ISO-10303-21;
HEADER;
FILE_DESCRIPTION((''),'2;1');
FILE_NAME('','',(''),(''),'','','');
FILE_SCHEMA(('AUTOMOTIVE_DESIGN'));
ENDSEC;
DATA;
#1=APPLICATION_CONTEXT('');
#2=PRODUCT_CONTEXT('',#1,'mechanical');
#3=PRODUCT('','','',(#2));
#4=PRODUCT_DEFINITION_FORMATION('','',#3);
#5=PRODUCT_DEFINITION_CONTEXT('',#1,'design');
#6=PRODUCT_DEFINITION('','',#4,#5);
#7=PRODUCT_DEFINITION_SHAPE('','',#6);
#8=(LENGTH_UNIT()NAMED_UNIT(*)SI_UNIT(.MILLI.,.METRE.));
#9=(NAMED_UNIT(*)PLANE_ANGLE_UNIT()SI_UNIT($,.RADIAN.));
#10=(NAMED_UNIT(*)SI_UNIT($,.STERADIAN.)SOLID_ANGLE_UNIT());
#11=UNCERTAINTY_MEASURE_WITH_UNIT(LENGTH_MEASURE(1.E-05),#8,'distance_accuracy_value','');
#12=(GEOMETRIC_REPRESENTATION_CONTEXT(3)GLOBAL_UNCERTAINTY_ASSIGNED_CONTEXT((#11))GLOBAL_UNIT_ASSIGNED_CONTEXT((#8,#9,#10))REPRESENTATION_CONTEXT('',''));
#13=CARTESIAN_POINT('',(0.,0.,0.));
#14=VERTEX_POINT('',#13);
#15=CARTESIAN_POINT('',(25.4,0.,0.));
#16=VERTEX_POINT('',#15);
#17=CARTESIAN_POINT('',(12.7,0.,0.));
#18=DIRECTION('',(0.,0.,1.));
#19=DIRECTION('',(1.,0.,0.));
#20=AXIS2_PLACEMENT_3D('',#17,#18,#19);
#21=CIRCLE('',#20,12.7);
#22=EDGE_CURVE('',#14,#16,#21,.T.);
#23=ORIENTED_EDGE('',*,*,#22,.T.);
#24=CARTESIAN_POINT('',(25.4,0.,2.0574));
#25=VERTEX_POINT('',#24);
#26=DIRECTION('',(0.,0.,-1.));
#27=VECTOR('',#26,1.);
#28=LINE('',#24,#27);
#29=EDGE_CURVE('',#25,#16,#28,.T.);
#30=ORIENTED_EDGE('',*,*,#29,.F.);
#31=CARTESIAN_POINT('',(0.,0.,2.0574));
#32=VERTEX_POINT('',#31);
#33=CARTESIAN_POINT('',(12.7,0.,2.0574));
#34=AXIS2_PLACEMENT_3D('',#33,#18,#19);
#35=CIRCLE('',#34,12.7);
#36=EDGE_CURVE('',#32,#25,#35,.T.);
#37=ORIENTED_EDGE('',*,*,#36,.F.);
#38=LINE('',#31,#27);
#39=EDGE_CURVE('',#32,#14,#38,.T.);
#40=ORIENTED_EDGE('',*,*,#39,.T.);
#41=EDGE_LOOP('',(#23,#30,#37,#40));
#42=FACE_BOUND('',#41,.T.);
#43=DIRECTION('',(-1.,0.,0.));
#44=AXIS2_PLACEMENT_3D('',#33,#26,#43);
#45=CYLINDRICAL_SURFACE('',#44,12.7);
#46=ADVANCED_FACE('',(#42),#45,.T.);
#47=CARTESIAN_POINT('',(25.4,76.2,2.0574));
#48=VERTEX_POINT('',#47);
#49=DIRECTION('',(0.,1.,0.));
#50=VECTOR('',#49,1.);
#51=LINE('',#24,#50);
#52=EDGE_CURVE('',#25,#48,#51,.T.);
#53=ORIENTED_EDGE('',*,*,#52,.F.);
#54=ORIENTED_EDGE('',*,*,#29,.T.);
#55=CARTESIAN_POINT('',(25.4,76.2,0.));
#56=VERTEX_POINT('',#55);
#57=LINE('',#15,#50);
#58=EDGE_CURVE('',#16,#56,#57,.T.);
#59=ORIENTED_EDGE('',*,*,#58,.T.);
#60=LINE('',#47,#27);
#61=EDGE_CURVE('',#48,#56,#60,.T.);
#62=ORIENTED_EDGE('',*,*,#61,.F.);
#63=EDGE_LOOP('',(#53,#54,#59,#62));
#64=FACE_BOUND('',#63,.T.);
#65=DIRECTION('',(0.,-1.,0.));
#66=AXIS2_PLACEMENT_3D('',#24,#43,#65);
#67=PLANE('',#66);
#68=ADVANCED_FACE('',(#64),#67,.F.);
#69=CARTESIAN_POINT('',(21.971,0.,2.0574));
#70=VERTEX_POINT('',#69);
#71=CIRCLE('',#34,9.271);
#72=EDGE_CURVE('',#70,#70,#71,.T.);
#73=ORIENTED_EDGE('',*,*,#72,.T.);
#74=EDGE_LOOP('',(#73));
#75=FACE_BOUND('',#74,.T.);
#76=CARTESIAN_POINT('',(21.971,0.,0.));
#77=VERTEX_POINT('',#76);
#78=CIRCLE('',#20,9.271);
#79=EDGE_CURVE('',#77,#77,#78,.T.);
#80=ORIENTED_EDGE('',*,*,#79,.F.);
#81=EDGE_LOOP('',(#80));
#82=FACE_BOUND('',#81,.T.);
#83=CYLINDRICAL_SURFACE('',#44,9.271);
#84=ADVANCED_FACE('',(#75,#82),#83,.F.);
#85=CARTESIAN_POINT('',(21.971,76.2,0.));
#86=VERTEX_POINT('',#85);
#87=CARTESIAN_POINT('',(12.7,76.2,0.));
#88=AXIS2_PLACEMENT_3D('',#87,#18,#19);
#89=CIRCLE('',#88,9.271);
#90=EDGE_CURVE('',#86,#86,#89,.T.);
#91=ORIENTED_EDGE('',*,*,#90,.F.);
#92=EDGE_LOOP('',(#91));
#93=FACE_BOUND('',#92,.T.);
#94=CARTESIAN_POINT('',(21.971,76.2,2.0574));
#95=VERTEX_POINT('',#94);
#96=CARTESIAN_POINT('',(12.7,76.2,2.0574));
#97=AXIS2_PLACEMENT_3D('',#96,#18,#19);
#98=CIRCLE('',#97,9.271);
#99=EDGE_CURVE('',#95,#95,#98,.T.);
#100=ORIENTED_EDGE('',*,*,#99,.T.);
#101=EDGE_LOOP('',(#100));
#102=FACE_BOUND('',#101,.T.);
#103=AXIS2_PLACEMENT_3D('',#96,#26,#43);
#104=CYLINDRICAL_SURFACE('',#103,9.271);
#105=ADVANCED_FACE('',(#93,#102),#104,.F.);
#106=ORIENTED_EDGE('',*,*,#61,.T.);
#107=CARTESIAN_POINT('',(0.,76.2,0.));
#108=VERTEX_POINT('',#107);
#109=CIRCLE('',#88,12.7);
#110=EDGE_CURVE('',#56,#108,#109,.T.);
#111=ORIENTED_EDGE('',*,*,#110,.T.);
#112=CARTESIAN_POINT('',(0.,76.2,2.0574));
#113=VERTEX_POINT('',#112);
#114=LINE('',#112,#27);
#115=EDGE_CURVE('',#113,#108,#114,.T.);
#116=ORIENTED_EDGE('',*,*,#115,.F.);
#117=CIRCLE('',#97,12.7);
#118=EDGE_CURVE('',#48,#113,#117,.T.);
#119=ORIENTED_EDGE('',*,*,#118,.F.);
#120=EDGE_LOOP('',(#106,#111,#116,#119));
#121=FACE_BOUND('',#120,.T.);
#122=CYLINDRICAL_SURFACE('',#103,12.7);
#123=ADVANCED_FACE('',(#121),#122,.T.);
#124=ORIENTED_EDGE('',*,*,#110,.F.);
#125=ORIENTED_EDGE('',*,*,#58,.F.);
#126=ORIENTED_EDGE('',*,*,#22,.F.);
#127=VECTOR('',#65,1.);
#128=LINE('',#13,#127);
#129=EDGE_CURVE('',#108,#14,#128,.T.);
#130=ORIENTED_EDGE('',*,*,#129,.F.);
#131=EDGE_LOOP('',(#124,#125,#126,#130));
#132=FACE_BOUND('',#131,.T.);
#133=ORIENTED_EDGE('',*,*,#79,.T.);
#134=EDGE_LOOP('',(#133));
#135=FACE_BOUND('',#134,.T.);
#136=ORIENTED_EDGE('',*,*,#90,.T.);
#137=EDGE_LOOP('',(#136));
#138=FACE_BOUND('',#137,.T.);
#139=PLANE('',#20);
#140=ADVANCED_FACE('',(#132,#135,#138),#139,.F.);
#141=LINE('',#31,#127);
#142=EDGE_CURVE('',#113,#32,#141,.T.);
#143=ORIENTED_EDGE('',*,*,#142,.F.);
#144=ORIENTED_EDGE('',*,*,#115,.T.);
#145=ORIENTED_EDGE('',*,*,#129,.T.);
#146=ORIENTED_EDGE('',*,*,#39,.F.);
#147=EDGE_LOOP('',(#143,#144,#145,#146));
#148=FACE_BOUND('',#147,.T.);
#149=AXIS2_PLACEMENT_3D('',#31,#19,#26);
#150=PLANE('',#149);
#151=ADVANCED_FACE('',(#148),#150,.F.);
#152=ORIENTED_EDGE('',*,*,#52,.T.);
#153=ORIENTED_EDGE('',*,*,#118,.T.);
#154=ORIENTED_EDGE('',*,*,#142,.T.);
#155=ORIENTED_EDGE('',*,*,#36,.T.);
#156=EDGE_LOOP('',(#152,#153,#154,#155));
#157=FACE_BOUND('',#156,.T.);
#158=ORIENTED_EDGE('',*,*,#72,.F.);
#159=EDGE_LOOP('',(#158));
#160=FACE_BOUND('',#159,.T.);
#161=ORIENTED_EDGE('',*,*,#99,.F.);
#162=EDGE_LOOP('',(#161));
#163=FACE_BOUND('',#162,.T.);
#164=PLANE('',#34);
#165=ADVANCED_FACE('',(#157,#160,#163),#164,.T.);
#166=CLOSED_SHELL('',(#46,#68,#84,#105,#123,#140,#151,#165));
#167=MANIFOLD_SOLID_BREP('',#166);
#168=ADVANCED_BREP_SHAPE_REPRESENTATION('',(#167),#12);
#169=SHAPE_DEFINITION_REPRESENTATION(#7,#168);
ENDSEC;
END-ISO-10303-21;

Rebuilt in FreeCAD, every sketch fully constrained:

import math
import FreeCAD as App
import Part
import Sketcher

V = App.Vector
Q = App.Units.Quantity

doc = App.newDocument("Part")
body = doc.addObject("PartDesign::Body", "Body")

sketch1 = body.newObject("Sketcher::SketchObject", "Sketch")
sketch1.AttachmentSupport = (doc.getObject("XY_Plane"), [""])
sketch1.MapMode = "FlatFace"
sketch1.addGeometry(Part.LineSegment(V(0, 76, 0), V(0, 0, 0)), False)
sketch1.addGeometry(Part.ArcOfCircle(Part.Circle(V(13, 0, 0), V(0, 0, 1), 13), math.radians(180), math.radians(360)), False)
sketch1.addGeometry(Part.LineSegment(V(25, 0, 0), V(25, 76, 0)), False)
sketch1.addGeometry(Part.ArcOfCircle(Part.Circle(V(13, 76, 0), V(0, 0, 1), 13), math.radians(0), math.radians(180)), False)
sketch1.addGeometry(Part.Circle(V(13, 0, 0), V(0, 0, 1), 9), False)
sketch1.addGeometry(Part.Circle(V(13, 76, 0), V(0, 0, 1), 9), False)
sketch1.addConstraint(Sketcher.Constraint("Tangent", 0, 2, 1, 1))
sketch1.addConstraint(Sketcher.Constraint("Tangent", 1, 2, 2, 1))
sketch1.addConstraint(Sketcher.Constraint("Tangent", 2, 2, 3, 1))
sketch1.addConstraint(Sketcher.Constraint("Tangent", 3, 2, 0, 1))
sketch1.addConstraint(Sketcher.Constraint("Vertical", 0))
sketch1.addConstraint(Sketcher.Constraint("Vertical", 2))
sketch1.addConstraint(Sketcher.Constraint("Coincident", 0, 2, -1, 1))
sketch1.addConstraint(Sketcher.Constraint("Coincident", 4, 3, 1, 3))
sketch1.addConstraint(Sketcher.Constraint("Coincident", 5, 3, 3, 3))
sketch1.addConstraint(Sketcher.Constraint("Equal", 4, 5))
sketch1.addConstraint(Sketcher.Constraint("Radius", 1, Q("0.5 in")))
sketch1.addConstraint(Sketcher.Constraint("Diameter", 4, Q("0.73 in")))
sketch1.addConstraint(Sketcher.Constraint("DistanceY", 0, 2, 0, 1, Q("3 in")))
pad1 = body.newObject("PartDesign::Pad", "Pad")
pad1.Profile = sketch1
pad1.Length = Q("0.081 in")

doc.recompute()
